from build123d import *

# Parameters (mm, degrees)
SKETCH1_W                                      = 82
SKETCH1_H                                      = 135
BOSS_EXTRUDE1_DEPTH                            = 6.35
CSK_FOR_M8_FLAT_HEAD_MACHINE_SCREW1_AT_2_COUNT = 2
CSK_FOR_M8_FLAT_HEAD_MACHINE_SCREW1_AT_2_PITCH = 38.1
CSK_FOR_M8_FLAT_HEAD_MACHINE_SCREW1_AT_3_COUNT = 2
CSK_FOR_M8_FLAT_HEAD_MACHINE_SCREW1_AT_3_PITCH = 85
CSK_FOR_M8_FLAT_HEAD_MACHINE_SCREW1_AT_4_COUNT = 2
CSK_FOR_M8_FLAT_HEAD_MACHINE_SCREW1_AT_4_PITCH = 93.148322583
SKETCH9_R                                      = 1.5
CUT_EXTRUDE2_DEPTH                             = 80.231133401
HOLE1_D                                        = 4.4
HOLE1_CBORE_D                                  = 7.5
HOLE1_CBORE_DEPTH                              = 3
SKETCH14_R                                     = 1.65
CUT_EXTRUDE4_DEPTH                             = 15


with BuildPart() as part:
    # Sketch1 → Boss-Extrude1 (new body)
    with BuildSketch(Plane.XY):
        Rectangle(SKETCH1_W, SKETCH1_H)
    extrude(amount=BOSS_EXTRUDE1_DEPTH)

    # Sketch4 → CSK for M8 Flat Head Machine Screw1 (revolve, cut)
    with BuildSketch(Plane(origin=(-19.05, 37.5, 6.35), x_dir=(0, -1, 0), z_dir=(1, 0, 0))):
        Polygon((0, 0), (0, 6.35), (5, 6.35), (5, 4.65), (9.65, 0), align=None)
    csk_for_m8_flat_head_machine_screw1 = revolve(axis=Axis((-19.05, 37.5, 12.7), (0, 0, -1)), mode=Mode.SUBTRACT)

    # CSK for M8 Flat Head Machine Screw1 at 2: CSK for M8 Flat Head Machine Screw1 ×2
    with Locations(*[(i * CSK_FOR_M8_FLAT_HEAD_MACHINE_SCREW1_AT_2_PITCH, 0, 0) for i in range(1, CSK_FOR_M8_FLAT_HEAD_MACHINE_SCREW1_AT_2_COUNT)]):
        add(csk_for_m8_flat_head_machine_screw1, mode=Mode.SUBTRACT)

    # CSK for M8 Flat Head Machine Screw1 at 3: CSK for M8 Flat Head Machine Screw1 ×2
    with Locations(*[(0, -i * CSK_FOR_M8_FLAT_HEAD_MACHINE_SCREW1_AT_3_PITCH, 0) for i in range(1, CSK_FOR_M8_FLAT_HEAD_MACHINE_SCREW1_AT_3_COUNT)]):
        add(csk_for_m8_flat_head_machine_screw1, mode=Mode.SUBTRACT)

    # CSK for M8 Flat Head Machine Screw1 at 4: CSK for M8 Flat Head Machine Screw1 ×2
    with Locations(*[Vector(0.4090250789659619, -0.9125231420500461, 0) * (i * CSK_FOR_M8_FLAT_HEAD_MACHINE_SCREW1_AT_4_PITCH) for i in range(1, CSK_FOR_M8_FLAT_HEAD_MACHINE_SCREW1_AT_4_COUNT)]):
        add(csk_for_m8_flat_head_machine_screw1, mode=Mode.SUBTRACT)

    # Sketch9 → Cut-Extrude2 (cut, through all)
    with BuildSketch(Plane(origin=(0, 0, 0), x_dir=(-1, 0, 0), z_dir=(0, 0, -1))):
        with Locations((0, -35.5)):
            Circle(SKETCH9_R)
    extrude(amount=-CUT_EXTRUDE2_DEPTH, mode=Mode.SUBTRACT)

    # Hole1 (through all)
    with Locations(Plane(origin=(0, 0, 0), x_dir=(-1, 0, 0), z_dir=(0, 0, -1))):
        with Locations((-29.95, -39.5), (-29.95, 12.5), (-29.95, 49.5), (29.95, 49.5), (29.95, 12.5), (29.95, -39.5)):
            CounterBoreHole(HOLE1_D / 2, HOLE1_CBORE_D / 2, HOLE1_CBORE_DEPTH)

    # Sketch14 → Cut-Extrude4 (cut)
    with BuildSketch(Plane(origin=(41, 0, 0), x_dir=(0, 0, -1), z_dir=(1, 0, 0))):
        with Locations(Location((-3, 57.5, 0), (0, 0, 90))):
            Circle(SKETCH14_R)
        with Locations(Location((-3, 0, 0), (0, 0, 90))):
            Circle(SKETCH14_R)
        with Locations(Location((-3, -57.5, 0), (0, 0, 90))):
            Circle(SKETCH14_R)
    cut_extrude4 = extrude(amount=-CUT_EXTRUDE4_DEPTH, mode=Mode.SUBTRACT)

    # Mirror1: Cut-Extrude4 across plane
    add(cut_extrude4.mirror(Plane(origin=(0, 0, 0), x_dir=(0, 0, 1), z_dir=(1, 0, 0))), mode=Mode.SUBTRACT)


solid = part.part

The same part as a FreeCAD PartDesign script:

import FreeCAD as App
import Part
import Sketcher
Q = App.Units.Quantity


def add_polygon(sketch, points):
    """Adds a closed chain of lines whose ends are joined by coincident constraints."""
    first, n = sketch.GeometryCount, len(points)
    for a, b in zip(points, points[1:] + points[:1]):
        sketch.addGeometry(Part.LineSegment(App.Vector(*a, 0), App.Vector(*b, 0)), False)
    for i in range(n):
        sketch.addConstraint(Sketcher.Constraint("Coincident", first + i, 2, first + (i + 1) % n, 1))

doc = App.newDocument("Part")
params = doc.addObject("Spreadsheet::Sheet", "Params")
for row, (alias, value) in enumerate([
    ("sketch1_width", "82 mm"),
    ("sketch1_height", "135 mm"),
    ("pad1_length", "6.35 mm"),
    ("sketch2_width", "5 mm"),
    ("sketch2_height", "1.7 mm"),
    ("sketch2_width2", "9.65 mm"),
    ("groove_angle", "360 deg"),
    ("linearpattern_pitch", "38.1 mm"),
    ("linearpattern2_pitch", "85 mm"),
    ("linearpattern3_pitch", "93.148323 mm"),
    ("sketch3_diameter", "3 mm"),
    ("sketch4_diameter", "4.4 mm"),
    ("hole_diameter", "4.4 mm"),
    ("hole_cbore_diameter", "7.5 mm"),
    ("hole_cbore_depth", "3 mm"),
    ("sketch5_diameter", "3.3 mm"),
    ("pocket2_length", "15 mm"),
], start=1):
    params.set(f"A{row}", alias)
    params.set(f"B{row}", "=" + value)
    params.setAlias(f"B{row}", alias)

body = doc.addObject("PartDesign::Body", "Body")

# Sketch on XY plane
sketch1 = body.newObject("Sketcher::SketchObject", "Sketch")
sketch1.AttachmentSupport = (doc.getObject("XY_Plane"), [""])
sketch1.MapMode = "FlatFace"
add_polygon(sketch1, [(-41, 68), (-41, -68), (41, -68), (41, 68)])  # lines 0-3
sketch1.addConstraint(Sketcher.Constraint("Vertical", 0))
sketch1.addConstraint(Sketcher.Constraint("Horizontal", 1))
sketch1.addConstraint(Sketcher.Constraint("Vertical", 2))
sketch1.addConstraint(Sketcher.Constraint("Horizontal", 3))
sketch1.addConstraint(Sketcher.Constraint("Symmetric", 0, 2, 2, 2, -1, 1))
sketch1.addConstraint(Sketcher.Constraint("DistanceX", 1, 1, 1, 2, Q("82 mm")))
sketch1.addConstraint(Sketcher.Constraint("DistanceY", 0, 2, 0, 1, Q("135 mm")))
sketch1.setExpression("Constraints[9]", "Params.sketch1_width")
sketch1.setExpression("Constraints[10]", "Params.sketch1_height")
pad1 = body.newObject("PartDesign::Pad", "Pad")
pad1.Profile = sketch1
pad1.setExpression("Length", "Params.pad1_length")

# Sketch on YZ plane
sketch2 = body.newObject("Sketcher::SketchObject", "Sketch001")
sketch2.AttachmentSupport = (doc.getObject("YZ_Plane"), [""])
sketch2.MapMode = "FlatFace"
sketch2.AttachmentOffset = App.Placement(App.Vector(0, 0, -19.05), App.Rotation())
add_polygon(sketch2, [(37.5, 0), (37.5, 6.3), (27.9, 6.3), (32.5, 1.7), (32.5, 0)])  # lines 0-4
sketch2.addGeometry(Part.LineSegment(App.Vector(37.5, 6.3, 0), App.Vector(37.5, 0, 0)), True)  # axis
sketch2.addConstraint(Sketcher.Constraint("Vertical", 0))
sketch2.addConstraint(Sketcher.Constraint("Horizontal", 1))
sketch2.addConstraint(Sketcher.Constraint("Vertical", 3))
sketch2.addConstraint(Sketcher.Constraint("Horizontal", 4))
sketch2.addConstraint(Sketcher.Constraint("Vertical", 5))
sketch2.addConstraint(Sketcher.Constraint("Coincident", 5, 1, 0, 2))
sketch2.addConstraint(Sketcher.Constraint("PointOnObject", 3, 2, -1))
sketch2.addConstraint(Sketcher.Constraint("PointOnObject", 5, 2, -1))
sketch2.addConstraint(Sketcher.Constraint("DistanceX", 4, 1, 4, 2, Q("5 mm")))
sketch2.addConstraint(Sketcher.Constraint("Angle", 2, Q("-45 deg")))
sketch2.addConstraint(Sketcher.Constraint("DistanceY", 3, 2, 3, 1, Q("1.7 mm")))
sketch2.addConstraint(Sketcher.Constraint("DistanceX", 1, 2, 1, 1, Q("9.65 mm")))
sketch2.addConstraint(Sketcher.Constraint("DistanceX", -1, 1, 0, 2, Q("37.5 mm")))
sketch2.setExpression("Constraints[13]", "Params.sketch2_width")
sketch2.setExpression("Constraints[15]", "Params.sketch2_height")
sketch2.setExpression("Constraints[16]", "Params.sketch2_width2")
groove = body.newObject("PartDesign::Groove", "Groove")
groove.Profile = sketch2
groove.ReferenceAxis = (sketch2, ["Axis0"])
groove.setExpression("Angle", "Params.groove_angle")
doc.recompute()

linearpattern = body.newObject("PartDesign::LinearPattern", "LinearPattern")
linearpattern.Originals = [groove]
linearpattern.Direction = (doc.getObject("X_Axis"), [""])
linearpattern.Mode = "offset"
linearpattern.setExpression("Offset", "Params.linearpattern_pitch")
linearpattern.Occurrences = 2
body.Tip = linearpattern
doc.recompute()

linearpattern2 = body.newObject("PartDesign::LinearPattern", "LinearPattern001")
linearpattern2.Originals = [groove]
linearpattern2.Direction = (doc.getObject("Y_Axis"), [""])
linearpattern2.Mode = "offset"
linearpattern2.setExpression("Offset", "Params.linearpattern2_pitch")
linearpattern2.Occurrences = 2
linearpattern2.Reversed = True
body.Tip = linearpattern2
doc.recompute()

datumline = body.newObject("PartDesign::Line", "DatumLine")
datumline.Placement = App.Placement(App.Vector(0, 0, 0), App.Rotation(App.Vector(0, 0, 1), App.Vector(0.409025079, -0.912523142, 0)))
linearpattern3 = body.newObject("PartDesign::LinearPattern", "LinearPattern002")
linearpattern3.Originals = [groove]
linearpattern3.Direction = (datumline, [""])
linearpattern3.Mode = "offset"
linearpattern3.setExpression("Offset", "Params.linearpattern3_pitch")
linearpattern3.Occurrences = 2
body.Tip = linearpattern3

# Sketch on XY plane
sketch3 = body.newObject("Sketcher::SketchObject", "Sketch002")
sketch3.AttachmentSupport = (doc.getObject("XY_Plane"), [""])
sketch3.MapMode = "FlatFace"
sketch3.addGeometry(Part.Circle(App.Vector(0, -35.5, 0), App.Vector(0, 0, 1), 1.5), False)
sketch3.addConstraint(Sketcher.Constraint("PointOnObject", 0, 3, -2))
sketch3.addConstraint(Sketcher.Constraint("Diameter", 0, Q("3 mm")))
sketch3.addConstraint(Sketcher.Constraint("DistanceY", 0, 3, -1, 1, Q("35.5 mm")))
sketch3.setExpression("Constraints[1]", "Params.sketch3_diameter")
pocket1 = body.newObject("PartDesign::Pocket", "Pocket")
pocket1.Profile = sketch3
pocket1.Type = "ThroughAll"
pocket1.Reversed = True

# Sketch on XY plane
sketch4 = body.newObject("Sketcher::SketchObject", "Sketch003")
sketch4.AttachmentSupport = (doc.getObject("XY_Plane"), [""])
sketch4.MapMode = "FlatFace"
sketch4.addGeometry(Part.Circle(App.Vector(29.9, -39.5, 0), App.Vector(0, 0, 1), 2.2), False)
sketch4.addGeometry(Part.Circle(App.Vector(29.9, 12.5, 0), App.Vector(0, 0, 1), 2.2), False)
sketch4.addGeometry(Part.Circle(App.Vector(29.9, 49.5, 0), App.Vector(0, 0, 1), 2.2), False)
sketch4.addGeometry(Part.Circle(App.Vector(-29.9, 49.5, 0), App.Vector(0, 0, 1), 2.2), False)
sketch4.addGeometry(Part.Circle(App.Vector(-29.9, 12.5, 0), App.Vector(0, 0, 1), 2.2), False)
sketch4.addGeometry(Part.Circle(App.Vector(-29.9, -39.5, 0), App.Vector(0, 0, 1), 2.2), False)
sketch4.addConstraint(Sketcher.Constraint("Equal", 0, 1))
sketch4.addConstraint(Sketcher.Constraint("Equal", 1, 2))
sketch4.addConstraint(Sketcher.Constraint("Equal", 2, 3))
sketch4.addConstraint(Sketcher.Constraint("Equal", 3, 4))
sketch4.addConstraint(Sketcher.Constraint("Equal", 4, 5))
sketch4.addConstraint(Sketcher.Constraint("Symmetric", 2, 3, 3, 3, -2))
sketch4.addConstraint(Sketcher.Constraint("Symmetric", 1, 3, 4, 3, -2))
sketch4.addConstraint(Sketcher.Constraint("Symmetric", 0, 3, 5, 3, -2))
sketch4.addConstraint(Sketcher.Constraint("Vertical", 0, 3, 1, 3))
sketch4.addConstraint(Sketcher.Constraint("Vertical", 1, 3, 2, 3))
sketch4.addConstraint(Sketcher.Constraint("Diameter", 0, Q("4.4 mm")))
sketch4.addConstraint(Sketcher.Constraint("DistanceY", 0, 3, 1, 3, Q("52 mm")))
sketch4.addConstraint(Sketcher.Constraint("DistanceY", 1, 3, 2, 3, Q("37 mm")))
sketch4.addConstraint(Sketcher.Constraint("DistanceY", 0, 3, -1, 1, Q("39.5 mm")))
sketch4.addConstraint(Sketcher.Constraint("DistanceX", 3, 3, 2, 3, Q("59.9 mm")))
sketch4.setExpression("Constraints[10]", "Params.sketch4_diameter")
doc.recompute()
hole = body.newObject("PartDesign::Hole", "Hole")
hole.Profile = sketch4
hole.ThreadType = "None"
hole.setExpression("Diameter", "Params.hole_diameter")
hole.DepthType = "ThroughAll"
hole.HoleCutType = "Counterbore"
hole.setExpression("HoleCutDiameter", "Params.hole_cbore_diameter")
hole.setExpression("HoleCutDepth", "Params.hole_cbore_depth")
hole.Reversed = True

# Sketch on YZ plane
sketch5 = body.newObject("Sketcher::SketchObject", "Sketch004")
sketch5.AttachmentSupport = (doc.getObject("YZ_Plane"), [""])
sketch5.MapMode = "FlatFace"
sketch5.AttachmentOffset = App.Placement(App.Vector(0, 0, 41), App.Rotation())
sketch5.addGeometry(Part.Circle(App.Vector(57.5, 3, 0), App.Vector(0, 0, 1), 1.6), False)
sketch5.addGeometry(Part.Circle(App.Vector(0, 3, 0), App.Vector(0, 0, 1), 1.6), False)
sketch5.addGeometry(Part.Circle(App.Vector(-57.5, 3, 0), App.Vector(0, 0, 1), 1.6), False)
sketch5.addConstraint(Sketcher.Constraint("Equal", 0, 1))
sketch5.addConstraint(Sketcher.Constraint("Equal", 1, 2))
sketch5.addConstraint(Sketcher.Constraint("Symmetric", 0, 3, 2, 3, -2))
sketch5.addConstraint(Sketcher.Constraint("PointOnObject", 1, 3, -2))
sketch5.addConstraint(Sketcher.Constraint("Horizontal", 0, 3, 1, 3))
sketch5.addConstraint(Sketcher.Constraint("Diameter", 0, Q("3.3 mm")))
sketch5.addConstraint(Sketcher.Constraint("DistanceY", -1, 1, 0, 3, Q("3 mm")))
sketch5.addConstraint(Sketcher.Constraint("DistanceX", 2, 3, 0, 3, Q("115 mm")))
sketch5.setExpression("Constraints[5]", "Params.sketch5_diameter")
pocket2 = body.newObject("PartDesign::Pocket", "Pocket001")
pocket2.Profile = sketch5
pocket2.setExpression("Length", "Params.pocket2_length")
doc.recompute()

mirrored = body.newObject("PartDesign::Mirrored", "Mirrored")
mirrored.Originals = [pocket2]
mirrored.MirrorPlane = (doc.getObject("YZ_Plane"), [""])
body.Tip = mirrored

doc.recompute()
